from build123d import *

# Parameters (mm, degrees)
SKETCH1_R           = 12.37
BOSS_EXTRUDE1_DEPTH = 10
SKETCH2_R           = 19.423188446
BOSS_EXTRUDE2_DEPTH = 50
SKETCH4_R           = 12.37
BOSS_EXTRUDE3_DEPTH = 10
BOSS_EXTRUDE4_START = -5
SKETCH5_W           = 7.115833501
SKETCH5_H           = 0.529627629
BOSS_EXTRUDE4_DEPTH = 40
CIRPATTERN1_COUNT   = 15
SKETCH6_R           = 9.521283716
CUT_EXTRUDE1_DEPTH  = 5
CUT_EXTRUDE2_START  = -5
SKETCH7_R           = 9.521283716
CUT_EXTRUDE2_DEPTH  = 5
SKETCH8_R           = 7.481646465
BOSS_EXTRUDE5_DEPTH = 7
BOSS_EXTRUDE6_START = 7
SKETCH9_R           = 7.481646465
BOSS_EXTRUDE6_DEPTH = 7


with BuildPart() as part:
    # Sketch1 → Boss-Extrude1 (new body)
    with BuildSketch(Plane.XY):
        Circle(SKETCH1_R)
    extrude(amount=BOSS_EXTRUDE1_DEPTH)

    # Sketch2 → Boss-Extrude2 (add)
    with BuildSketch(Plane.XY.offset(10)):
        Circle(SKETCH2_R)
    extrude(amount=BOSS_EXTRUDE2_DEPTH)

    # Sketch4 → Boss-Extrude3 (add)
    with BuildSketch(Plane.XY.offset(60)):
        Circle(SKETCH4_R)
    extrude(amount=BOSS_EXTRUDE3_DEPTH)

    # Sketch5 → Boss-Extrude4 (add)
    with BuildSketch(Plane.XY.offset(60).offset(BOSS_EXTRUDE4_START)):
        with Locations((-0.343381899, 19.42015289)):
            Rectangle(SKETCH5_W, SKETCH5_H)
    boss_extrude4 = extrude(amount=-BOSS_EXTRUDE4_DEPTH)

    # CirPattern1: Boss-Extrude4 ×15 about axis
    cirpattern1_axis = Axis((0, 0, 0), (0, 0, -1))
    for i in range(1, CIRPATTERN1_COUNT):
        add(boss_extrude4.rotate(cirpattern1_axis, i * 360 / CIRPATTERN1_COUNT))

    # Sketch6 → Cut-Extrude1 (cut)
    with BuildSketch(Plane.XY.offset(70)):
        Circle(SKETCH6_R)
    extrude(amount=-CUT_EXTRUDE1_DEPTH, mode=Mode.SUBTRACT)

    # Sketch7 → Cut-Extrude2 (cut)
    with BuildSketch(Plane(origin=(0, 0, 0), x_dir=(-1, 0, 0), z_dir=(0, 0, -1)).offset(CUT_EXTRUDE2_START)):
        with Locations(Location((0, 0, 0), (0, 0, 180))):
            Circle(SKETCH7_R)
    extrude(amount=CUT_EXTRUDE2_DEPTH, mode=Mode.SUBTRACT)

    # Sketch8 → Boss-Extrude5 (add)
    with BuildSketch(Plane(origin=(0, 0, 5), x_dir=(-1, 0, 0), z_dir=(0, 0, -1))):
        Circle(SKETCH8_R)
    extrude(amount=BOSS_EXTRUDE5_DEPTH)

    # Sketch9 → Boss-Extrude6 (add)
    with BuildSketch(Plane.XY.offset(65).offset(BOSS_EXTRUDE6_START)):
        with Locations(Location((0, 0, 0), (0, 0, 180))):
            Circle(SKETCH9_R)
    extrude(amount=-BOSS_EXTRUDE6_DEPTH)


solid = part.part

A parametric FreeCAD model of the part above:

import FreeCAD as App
import Part
import Sketcher

doc = App.newDocument("Part")
body = doc.addObject("PartDesign::Body", "Body")

sketch1 = body.newObject("Sketcher::SketchObject", "Sketch")
sketch1.AttachmentSupport = (doc.getObject("XY_Plane"), [""])
sketch1.MapMode = "FlatFace"
sketch1.addGeometry(Part.Circle(App.Vector(0, 0, 0), App.Vector(0, 0, 1), 12), False)
sketch1.addConstraint([
    Sketcher.Constraint("Coincident", 0, 3, -1, 1),
    Sketcher.Constraint("Diameter", 0, 24.74),
])
pad1 = body.newObject("PartDesign::Pad", "Pad")
pad1.Profile = sketch1
pad1.Length = 10

sketch2 = body.newObject("Sketcher::SketchObject", "Sketch001")
sketch2.AttachmentSupport = (doc.getObject("XY_Plane"), [""])
sketch2.MapMode = "FlatFace"
sketch2.AttachmentOffset = App.Placement(App.Vector(0, 0, 10), App.Rotation())
sketch2.addGeometry(Part.Circle(App.Vector(0, 0, 0), App.Vector(0, 0, 1), 19), False)
sketch2.addConstraint([
    Sketcher.Constraint("Coincident", 0, 3, -1, 1),
    Sketcher.Constraint("Diameter", 0, 38.846377),
])
pad2 = body.newObject("PartDesign::Pad", "Pad001")
pad2.Profile = sketch2
pad2.Length = 50

sketch3 = body.newObject("Sketcher::SketchObject", "Sketch002")
sketch3.AttachmentSupport = (doc.getObject("XY_Plane"), [""])
sketch3.MapMode = "FlatFace"
sketch3.AttachmentOffset = App.Placement(App.Vector(0, 0, 60), App.Rotation())
sketch3.addGeometry(Part.Circle(App.Vector(0, 0, 0), App.Vector(0, 0, 1), 12), False)
sketch3.addConstraint([
    Sketcher.Constraint("Coincident", 0, 3, -1, 1),
    Sketcher.Constraint("Diameter", 0, 24.74),
])
pad3 = body.newObject("PartDesign::Pad", "Pad002")
pad3.Profile = sketch3
pad3.Length = 10

sketch4 = body.newObject("Sketcher::SketchObject", "Sketch003")
sketch4.AttachmentSupport = (doc.getObject("XY_Plane"), [""])
sketch4.MapMode = "FlatFace"
sketch4.AttachmentOffset = App.Placement(App.Vector(0, 0, 55), App.Rotation())
sketch4.addGeometry([
    Part.LineSegment(App.Vector(-3.9, 19.7, 0), App.Vector(-3.9, 19.2, 0)),
    Part.LineSegment(App.Vector(-3.9, 19.2, 0), App.Vector(3.2, 19.2, 0)),
    Part.LineSegment(App.Vector(3.2, 19.2, 0), App.Vector(3.2, 19.7, 0)),
    Part.LineSegment(App.Vector(3.2, 19.7, 0), App.Vector(-3.9, 19.7, 0)),
], False)
sketch4.addConstraint([
    Sketcher.Constraint("Coincident", 0, 2, 1, 1),
    Sketcher.Constraint("Coincident", 1, 2, 2, 1),
    Sketcher.Constraint("Coincident", 2, 2, 3, 1),
    Sketcher.Constraint("Coincident", 3, 2, 0, 1),
    Sketcher.Constraint("Vertical", 0),
    Sketcher.Constraint("Horizontal", 1),
    Sketcher.Constraint("Vertical", 2),
    Sketcher.Constraint("Horizontal", 3),
    Sketcher.Constraint("DistanceX", 0, 2, -1, 1, 3.901299),
    Sketcher.Constraint("DistanceX", 1, 1, 1, 2, 7.115834),
    Sketcher.Constraint("DistanceY", 0, 2, 0, 1, 0.529628),
    Sketcher.Constraint("DistanceY", -1, 1, 0, 2, 19.155339),
])
pad4 = body.newObject("PartDesign::Pad", "Pad003")
pad4.Profile = sketch4
pad4.Length = 40
pad4.Reversed = True
doc.recompute()

polarpattern = body.newObject("PartDesign::PolarPattern", "PolarPattern")
polarpattern.Originals = [pad4]
polarpattern.Axis = (doc.getObject("Z_Axis"), [""])
polarpattern.Angle = 360
polarpattern.Occurrences = 15
body.Tip = polarpattern

sketch5 = body.newObject("Sketcher::SketchObject", "Sketch004")
sketch5.AttachmentSupport = (doc.getObject("XY_Plane"), [""])
sketch5.MapMode = "FlatFace"
sketch5.AttachmentOffset = App.Placement(App.Vector(0, 0, 70), App.Rotation())
sketch5.addGeometry(Part.Circle(App.Vector(0, 0, 0), App.Vector(0, 0, 1), 10), False)
sketch5.addConstraint([
    Sketcher.Constraint("Coincident", 0, 3, -1, 1),
    Sketcher.Constraint("Diameter", 0, 19.042567),
])
pocket1 = body.newObject("PartDesign::Pocket", "Pocket")
pocket1.Profile = sketch5
pocket1.Length = 5

sketch6 = body.newObject("Sketcher::SketchObject", "Sketch005")
sketch6.AttachmentSupport = (doc.getObject("XY_Plane"), [""])
sketch6.MapMode = "FlatFace"
sketch6.AttachmentOffset = App.Placement(App.Vector(0, 0, 5), App.Rotation())
sketch6.addGeometry(Part.Circle(App.Vector(0, 0, 0), App.Vector(0, 0, 1), 10), False)
sketch6.addConstraint([
    Sketcher.Constraint("Coincident", 0, 3, -1, 1),
    Sketcher.Constraint("Diameter", 0, 19.042567),
])
pocket2 = body.newObject("PartDesign::Pocket", "Pocket001")
pocket2.Profile = sketch6
pocket2.Length = 5

sketch7 = body.newObject("Sketcher::SketchObject", "Sketch006")
sketch7.AttachmentSupport = (doc.getObject("XY_Plane"), [""])
sketch7.MapMode = "FlatFace"
sketch7.AttachmentOffset = App.Placement(App.Vector(0, 0, 5), App.Rotation())
sketch7.addGeometry(Part.Circle(App.Vector(0, 0, 0), App.Vector(0, 0, 1), 7), False)
sketch7.addConstraint([
    Sketcher.Constraint("Coincident", 0, 3, -1, 1),
    Sketcher.Constraint("Diameter", 0, 14.963293),
])
pad5 = body.newObject("PartDesign::Pad", "Pad004")
pad5.Profile = sketch7
pad5.Length = 7
pad5.Reversed = True

sketch8 = body.newObject("Sketcher::SketchObject", "Sketch007")
sketch8.AttachmentSupport = (doc.getObject("XY_Plane"), [""])
sketch8.MapMode = "FlatFace"
sketch8.AttachmentOffset = App.Placement(App.Vector(0, 0, 72), App.Rotation())
sketch8.addGeometry(Part.Circle(App.Vector(0, 0, 0), App.Vector(0, 0, 1), 7), False)
sketch8.addConstraint([
    Sketcher.Constraint("Coincident", 0, 3, -1, 1),
    Sketcher.Constraint("Diameter", 0, 14.963293),
])
pad6 = body.newObject("PartDesign::Pad", "Pad005")
pad6.Profile = sketch8
pad6.Length = 7
pad6.Reversed = True

doc.recompute()
